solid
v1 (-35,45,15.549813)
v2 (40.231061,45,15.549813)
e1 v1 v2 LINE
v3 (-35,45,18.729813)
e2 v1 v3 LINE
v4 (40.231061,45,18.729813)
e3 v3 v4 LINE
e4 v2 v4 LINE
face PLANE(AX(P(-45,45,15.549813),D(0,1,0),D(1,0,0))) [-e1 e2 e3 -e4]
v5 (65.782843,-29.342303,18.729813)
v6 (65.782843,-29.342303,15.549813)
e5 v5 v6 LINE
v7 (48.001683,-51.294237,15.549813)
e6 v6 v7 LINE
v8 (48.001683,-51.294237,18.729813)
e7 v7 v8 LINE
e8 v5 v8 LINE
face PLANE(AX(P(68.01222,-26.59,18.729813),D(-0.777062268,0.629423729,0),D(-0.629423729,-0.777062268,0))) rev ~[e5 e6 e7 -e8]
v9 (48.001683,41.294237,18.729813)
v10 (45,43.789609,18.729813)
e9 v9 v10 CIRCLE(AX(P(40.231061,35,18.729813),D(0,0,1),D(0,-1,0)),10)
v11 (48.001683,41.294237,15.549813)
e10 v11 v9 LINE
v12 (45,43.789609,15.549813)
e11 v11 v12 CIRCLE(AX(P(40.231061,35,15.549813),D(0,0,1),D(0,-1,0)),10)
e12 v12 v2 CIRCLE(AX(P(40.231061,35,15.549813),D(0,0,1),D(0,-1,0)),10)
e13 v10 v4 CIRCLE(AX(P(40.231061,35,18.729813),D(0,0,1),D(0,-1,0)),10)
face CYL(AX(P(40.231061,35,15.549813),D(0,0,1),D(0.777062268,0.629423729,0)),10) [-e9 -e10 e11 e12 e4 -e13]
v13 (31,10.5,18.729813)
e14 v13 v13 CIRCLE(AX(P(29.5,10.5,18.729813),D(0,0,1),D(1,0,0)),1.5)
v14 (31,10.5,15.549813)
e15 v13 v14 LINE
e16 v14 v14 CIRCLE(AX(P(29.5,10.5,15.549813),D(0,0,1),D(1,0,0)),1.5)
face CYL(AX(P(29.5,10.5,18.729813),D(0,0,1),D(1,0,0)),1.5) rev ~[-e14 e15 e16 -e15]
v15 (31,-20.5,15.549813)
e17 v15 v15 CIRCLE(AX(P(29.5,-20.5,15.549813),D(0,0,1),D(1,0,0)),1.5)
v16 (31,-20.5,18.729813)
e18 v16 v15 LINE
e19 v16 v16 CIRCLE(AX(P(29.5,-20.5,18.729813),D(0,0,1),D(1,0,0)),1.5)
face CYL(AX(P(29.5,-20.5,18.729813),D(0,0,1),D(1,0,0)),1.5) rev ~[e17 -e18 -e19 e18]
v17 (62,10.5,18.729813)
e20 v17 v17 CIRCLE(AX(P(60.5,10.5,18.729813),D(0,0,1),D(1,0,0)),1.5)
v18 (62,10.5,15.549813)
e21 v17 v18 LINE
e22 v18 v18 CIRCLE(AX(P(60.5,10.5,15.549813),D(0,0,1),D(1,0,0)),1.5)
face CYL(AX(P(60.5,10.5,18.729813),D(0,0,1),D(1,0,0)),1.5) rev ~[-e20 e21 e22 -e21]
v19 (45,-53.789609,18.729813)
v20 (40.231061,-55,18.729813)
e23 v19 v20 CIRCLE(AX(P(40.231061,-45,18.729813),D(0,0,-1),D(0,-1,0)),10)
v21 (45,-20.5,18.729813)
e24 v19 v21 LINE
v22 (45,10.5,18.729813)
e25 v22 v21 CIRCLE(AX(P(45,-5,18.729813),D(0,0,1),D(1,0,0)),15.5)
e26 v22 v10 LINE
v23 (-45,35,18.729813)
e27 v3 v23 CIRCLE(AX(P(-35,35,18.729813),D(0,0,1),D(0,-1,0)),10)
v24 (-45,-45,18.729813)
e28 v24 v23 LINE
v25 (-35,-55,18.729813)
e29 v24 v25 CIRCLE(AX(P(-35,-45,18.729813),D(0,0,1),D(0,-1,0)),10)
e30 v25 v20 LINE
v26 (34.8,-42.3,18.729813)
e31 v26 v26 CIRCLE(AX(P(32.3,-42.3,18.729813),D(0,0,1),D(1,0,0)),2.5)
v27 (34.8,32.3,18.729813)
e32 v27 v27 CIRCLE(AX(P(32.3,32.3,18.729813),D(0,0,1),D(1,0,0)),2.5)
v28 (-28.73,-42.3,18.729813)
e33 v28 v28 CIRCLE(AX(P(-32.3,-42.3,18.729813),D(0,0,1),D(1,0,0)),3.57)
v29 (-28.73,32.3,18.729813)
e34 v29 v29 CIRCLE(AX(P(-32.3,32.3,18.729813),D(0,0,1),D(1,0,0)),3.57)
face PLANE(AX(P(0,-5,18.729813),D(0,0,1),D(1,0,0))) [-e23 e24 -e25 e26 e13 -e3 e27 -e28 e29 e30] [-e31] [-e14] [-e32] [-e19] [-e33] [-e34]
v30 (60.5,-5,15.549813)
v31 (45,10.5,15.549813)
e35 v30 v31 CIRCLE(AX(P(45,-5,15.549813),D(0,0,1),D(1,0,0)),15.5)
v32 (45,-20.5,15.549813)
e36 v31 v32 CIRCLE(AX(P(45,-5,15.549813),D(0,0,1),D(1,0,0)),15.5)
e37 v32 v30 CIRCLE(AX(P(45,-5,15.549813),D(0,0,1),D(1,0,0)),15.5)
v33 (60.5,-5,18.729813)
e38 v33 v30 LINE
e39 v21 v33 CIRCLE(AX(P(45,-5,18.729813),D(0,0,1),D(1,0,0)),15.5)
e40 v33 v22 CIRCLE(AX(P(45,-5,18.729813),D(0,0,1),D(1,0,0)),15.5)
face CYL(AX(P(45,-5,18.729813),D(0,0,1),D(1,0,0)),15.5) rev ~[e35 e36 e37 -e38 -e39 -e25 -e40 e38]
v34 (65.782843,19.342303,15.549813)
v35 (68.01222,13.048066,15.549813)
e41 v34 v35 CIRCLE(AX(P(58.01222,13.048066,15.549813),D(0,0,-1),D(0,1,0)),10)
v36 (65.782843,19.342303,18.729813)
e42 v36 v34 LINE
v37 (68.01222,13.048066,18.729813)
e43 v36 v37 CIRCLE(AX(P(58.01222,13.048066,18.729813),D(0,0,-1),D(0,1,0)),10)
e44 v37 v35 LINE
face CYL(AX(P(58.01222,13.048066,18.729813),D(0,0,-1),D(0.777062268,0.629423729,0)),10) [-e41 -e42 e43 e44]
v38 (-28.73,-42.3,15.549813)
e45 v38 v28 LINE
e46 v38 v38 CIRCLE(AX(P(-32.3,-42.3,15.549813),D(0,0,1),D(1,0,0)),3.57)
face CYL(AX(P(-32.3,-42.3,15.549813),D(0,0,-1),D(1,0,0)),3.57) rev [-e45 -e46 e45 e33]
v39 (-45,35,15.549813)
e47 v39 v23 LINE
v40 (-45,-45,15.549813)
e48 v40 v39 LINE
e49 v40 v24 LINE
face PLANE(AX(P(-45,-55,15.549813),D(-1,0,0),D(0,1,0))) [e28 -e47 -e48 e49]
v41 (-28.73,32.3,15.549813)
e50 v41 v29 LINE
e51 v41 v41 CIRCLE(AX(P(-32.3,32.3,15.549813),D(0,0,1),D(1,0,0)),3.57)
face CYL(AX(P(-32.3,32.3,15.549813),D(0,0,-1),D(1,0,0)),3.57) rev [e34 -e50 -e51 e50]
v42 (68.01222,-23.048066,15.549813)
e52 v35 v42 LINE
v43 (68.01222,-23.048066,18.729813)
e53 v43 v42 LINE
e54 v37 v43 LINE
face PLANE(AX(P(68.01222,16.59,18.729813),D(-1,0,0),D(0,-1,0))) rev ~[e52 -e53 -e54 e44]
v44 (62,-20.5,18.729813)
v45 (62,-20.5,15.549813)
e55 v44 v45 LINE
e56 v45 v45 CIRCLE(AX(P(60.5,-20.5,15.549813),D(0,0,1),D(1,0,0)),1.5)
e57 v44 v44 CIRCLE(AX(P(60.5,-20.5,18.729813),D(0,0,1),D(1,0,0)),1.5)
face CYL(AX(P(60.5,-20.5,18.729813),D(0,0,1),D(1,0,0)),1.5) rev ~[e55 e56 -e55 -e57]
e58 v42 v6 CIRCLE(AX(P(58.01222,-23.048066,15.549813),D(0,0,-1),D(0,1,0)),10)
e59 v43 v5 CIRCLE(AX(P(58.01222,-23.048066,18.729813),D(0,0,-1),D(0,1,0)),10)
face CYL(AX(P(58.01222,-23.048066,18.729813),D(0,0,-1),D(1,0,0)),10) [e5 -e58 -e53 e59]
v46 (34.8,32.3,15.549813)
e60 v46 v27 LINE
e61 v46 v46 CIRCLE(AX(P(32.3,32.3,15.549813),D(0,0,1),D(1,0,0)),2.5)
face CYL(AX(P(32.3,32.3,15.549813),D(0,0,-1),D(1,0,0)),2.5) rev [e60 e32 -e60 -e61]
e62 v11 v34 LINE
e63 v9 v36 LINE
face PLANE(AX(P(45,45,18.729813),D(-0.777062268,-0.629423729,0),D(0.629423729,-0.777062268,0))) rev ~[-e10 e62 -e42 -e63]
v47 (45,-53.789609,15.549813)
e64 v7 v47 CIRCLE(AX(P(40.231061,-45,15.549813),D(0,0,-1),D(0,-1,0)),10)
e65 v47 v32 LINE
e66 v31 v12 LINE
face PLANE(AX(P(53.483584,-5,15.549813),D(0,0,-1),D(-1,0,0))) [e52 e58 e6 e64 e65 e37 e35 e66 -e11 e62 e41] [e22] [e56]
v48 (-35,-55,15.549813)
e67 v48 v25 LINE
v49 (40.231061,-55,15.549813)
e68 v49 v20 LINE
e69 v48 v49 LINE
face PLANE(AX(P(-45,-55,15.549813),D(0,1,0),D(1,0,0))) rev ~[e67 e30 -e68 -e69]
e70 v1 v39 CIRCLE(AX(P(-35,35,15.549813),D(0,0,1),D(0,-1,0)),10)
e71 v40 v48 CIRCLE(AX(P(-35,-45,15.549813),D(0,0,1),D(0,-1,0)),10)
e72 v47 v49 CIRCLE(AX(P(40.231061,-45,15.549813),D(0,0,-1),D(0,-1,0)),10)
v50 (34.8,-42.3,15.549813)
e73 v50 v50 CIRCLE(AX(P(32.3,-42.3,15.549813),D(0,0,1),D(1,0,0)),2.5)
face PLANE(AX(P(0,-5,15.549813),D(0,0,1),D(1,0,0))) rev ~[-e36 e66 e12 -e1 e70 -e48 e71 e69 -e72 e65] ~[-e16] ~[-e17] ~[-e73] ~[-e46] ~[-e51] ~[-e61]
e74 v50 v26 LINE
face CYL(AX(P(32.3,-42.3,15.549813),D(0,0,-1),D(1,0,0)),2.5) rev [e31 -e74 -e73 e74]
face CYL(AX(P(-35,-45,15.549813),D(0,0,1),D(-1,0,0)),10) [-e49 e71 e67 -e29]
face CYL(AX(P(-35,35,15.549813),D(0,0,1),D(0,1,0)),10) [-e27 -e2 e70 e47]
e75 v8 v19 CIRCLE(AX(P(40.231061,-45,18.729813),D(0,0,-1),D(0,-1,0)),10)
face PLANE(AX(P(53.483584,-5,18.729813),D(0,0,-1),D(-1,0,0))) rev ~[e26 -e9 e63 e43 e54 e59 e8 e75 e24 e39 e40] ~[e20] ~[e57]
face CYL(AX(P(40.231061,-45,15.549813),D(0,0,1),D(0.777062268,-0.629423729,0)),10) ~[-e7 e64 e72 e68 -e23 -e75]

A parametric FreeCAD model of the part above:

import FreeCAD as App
import Part
import Sketcher

V = App.Vector
Q = App.Units.Quantity


def edges_at(feature, points):
    """Names of the edges that pass closest to the given points."""
    edges = feature.Shape.Edges
    near = lambda p: min(range(len(edges)), key=lambda i: edges[i].distToShape(Part.Vertex(*p))[0])
    return sorted({f"Edge{near(p) + 1}" for p in points})

doc = App.newDocument("Part")
body = doc.addObject("PartDesign::Body", "Body")

# Sketch on XY plane
sketch1 = body.newObject("Sketcher::SketchObject", "Sketch")
sketch1.AttachmentSupport = (doc.getObject("XY_Plane"), [""])
sketch1.MapMode = "FlatFace"
sketch1.AttachmentOffset = App.Placement(V(0, 0, 15.549813), App.Rotation())
sketch1.addGeometry([
    Part.LineSegment(V(-45, 45, 0), V(-45, -55, 0)),  # 0
    Part.LineSegment(V(-45, -55, 0), V(45, -55, 0)),  # 1
    Part.LineSegment(V(45, -55, 0), V(45, 45, 0)),  # 2
    Part.LineSegment(V(45, 45, 0), V(-45, 45, 0)),  # 3
    Part.Circle(V(-32.3, -42.3, 0), V(0, 0, 1), 3.6),  # 4
    Part.Circle(V(32.3, -42.3, 0), V(0, 0, 1), 2.5),  # 5
    Part.Circle(V(-32.3, 32.3, 0), V(0, 0, 1), 3.6),  # 6
    Part.Circle(V(32.3, 32.3, 0), V(0, 0, 1), 2.5),  # 7
], False)
sketch1.addConstraint([
    Sketcher.Constraint("Coincident", 0, 2, 1, 1),
    Sketcher.Constraint("Coincident", 1, 2, 2, 1),
    Sketcher.Constraint("Coincident", 2, 2, 3, 1),
    Sketcher.Constraint("Coincident", 3, 2, 0, 1),
    Sketcher.Constraint("Vertical", 0),
    Sketcher.Constraint("Horizontal", 1),
    Sketcher.Constraint("Vertical", 2),
    Sketcher.Constraint("Horizontal", 3),
    Sketcher.Constraint("Equal", 4, 6),
    Sketcher.Constraint("Equal", 5, 7),
    Sketcher.Constraint("Symmetric", 4, 3, 5, 3, -2),
    Sketcher.Constraint("Symmetric", 6, 3, 7, 3, -2),
    Sketcher.Constraint("Vertical", 4, 3, 6, 3),
    Sketcher.Constraint("Diameter", 5, Q("5 mm")),
    Sketcher.Constraint("Diameter", 4, Q("7.14 mm")),
    Sketcher.Constraint("DistanceX", 1, 1, 1, 2, Q("90 mm")),
    Sketcher.Constraint("DistanceY", 0, 2, 0, 1, Q("100 mm")),
    Sketcher.Constraint("DistanceX", 0, 2, -1, 1, Q("45 mm")),
    Sketcher.Constraint("DistanceY", 0, 2, -1, 1, Q("55 mm")),
    Sketcher.Constraint("DistanceX", 4, 3, -1, 1, Q("32.3 mm")),
    Sketcher.Constraint("DistanceY", 4, 3, -1, 1, Q("42.3 mm")),
    Sketcher.Constraint("DistanceY", -1, 1, 6, 3, Q("32.3 mm")),
])
pad1 = body.newObject("PartDesign::Pad", "Pad")
pad1.Profile = sketch1
pad1.Length = 3.18

# Sketch on XY plane
sketch2 = body.newObject("Sketcher::SketchObject", "Sketch001")
sketch2.AttachmentSupport = (doc.getObject("XY_Plane"), [""])
sketch2.MapMode = "FlatFace"
sketch2.AttachmentOffset = App.Placement(V(0, 0, 18.729813), App.Rotation())
sketch2.addGeometry([
    Part.LineSegment(V(68, 17, 0), V(45, 45, 0)),
    Part.LineSegment(V(45, 45, 0), V(45, -55, 0)),
    Part.LineSegment(V(45, -55, 0), V(68, -27, 0)),
    Part.LineSegment(V(68, -27, 0), V(68, 17, 0)),
], False)
sketch2.addConstraint([
    Sketcher.Constraint("Coincident", 0, 2, 1, 1),
    Sketcher.Constraint("Coincident", 1, 2, 2, 1),
    Sketcher.Constraint("Coincident", 2, 2, 3, 1),
    Sketcher.Constraint("Coincident", 3, 2, 0, 1),
    Sketcher.Constraint("Vertical", 1),
    Sketcher.Constraint("Vertical", 3),
    Sketcher.Constraint("Equal", 0, 2),
    Sketcher.Constraint("DistanceY", 1, 2, 1, 1, Q("100 mm")),
    Sketcher.Constraint("DistanceX", -1, 1, 0, 2, Q("45 mm")),
    Sketcher.Constraint("DistanceY", -1, 1, 0, 2, Q("45 mm")),
    Sketcher.Constraint("DistanceY", 3, 1, 3, 2, Q("43.18 mm")),
    Sketcher.Constraint("DistanceX", -1, 1, 2, 2, Q("68.01222 mm")),
])
pad2 = body.newObject("PartDesign::Pad", "Pad001")
pad2.Profile = sketch2
pad2.Length = 3.18
pad2.Reversed = True

# Sketch on XY plane
sketch3 = body.newObject("Sketcher::SketchObject", "Sketch002")
sketch3.AttachmentSupport = (doc.getObject("XY_Plane"), [""])
sketch3.MapMode = "FlatFace"
sketch3.AttachmentOffset = App.Placement(V(0, 0, 18.729813), App.Rotation())
sketch3.addGeometry([
    Part.Circle(V(29.5, 10.5, 0), V(0, 0, 1), 1.5),  # 0
    Part.Circle(V(60.5, 10.5, 0), V(0, 0, 1), 1.5),  # 1
    Part.Circle(V(60.5, -20.5, 0), V(0, 0, 1), 1.5),  # 2
    Part.Circle(V(29.5, -20.5, 0), V(0, 0, 1), 1.5),  # 3
    Part.Circle(V(45, -5, 0), V(0, 0, 1), 15.5),  # 4
], False)
sketch3.addConstraint([
    Sketcher.Constraint("Equal", 0, 1),
    Sketcher.Constraint("Equal", 1, 2),
    Sketcher.Constraint("Equal", 2, 3),
    Sketcher.Constraint("Horizontal", 0, 3, 1, 3),
    Sketcher.Constraint("Horizontal", 2, 3, 3, 3),
    Sketcher.Constraint("Vertical", 1, 3, 2, 3),
    Sketcher.Constraint("Vertical", 0, 3, 3, 3),
    Sketcher.Constraint("Diameter", 0, Q("3 mm")),
    Sketcher.Constraint("Diameter", 4, Q("31 mm")),
    Sketcher.Constraint("DistanceX", -1, 1, 4, 3, Q("45 mm")),
    Sketcher.Constraint("DistanceY", 4, 3, -1, 1, Q("5 mm")),
    Sketcher.Constraint("DistanceX", 0, 3, 1, 3, Q("31 mm")),
    Sketcher.Constraint("DistanceY", 2, 3, 1, 3, Q("31 mm")),
    Sketcher.Constraint("DistanceX", -1, 1, 0, 3, Q("29.5 mm")),
    Sketcher.Constraint("DistanceY", -1, 1, 0, 3, Q("10.5 mm")),
])
pocket1 = body.newObject("PartDesign::Pocket", "Pocket")
pocket1.Profile = sketch3
pocket1.Length = 10
doc.recompute()

fillet = body.newObject("PartDesign::Fillet", "Fillet")
fillet.Base = (pocket1, edges_at(pocket1, [
    (68.012, 16.59, 17.14),
    (68.012, -26.59, 17.14),
    (-45, 45, 17.14),
    (45, 45, 17.14),
    (45, -55, 17.14),
    (-45, -55, 17.14),
]))
fillet.Radius = 10

doc.recompute()
